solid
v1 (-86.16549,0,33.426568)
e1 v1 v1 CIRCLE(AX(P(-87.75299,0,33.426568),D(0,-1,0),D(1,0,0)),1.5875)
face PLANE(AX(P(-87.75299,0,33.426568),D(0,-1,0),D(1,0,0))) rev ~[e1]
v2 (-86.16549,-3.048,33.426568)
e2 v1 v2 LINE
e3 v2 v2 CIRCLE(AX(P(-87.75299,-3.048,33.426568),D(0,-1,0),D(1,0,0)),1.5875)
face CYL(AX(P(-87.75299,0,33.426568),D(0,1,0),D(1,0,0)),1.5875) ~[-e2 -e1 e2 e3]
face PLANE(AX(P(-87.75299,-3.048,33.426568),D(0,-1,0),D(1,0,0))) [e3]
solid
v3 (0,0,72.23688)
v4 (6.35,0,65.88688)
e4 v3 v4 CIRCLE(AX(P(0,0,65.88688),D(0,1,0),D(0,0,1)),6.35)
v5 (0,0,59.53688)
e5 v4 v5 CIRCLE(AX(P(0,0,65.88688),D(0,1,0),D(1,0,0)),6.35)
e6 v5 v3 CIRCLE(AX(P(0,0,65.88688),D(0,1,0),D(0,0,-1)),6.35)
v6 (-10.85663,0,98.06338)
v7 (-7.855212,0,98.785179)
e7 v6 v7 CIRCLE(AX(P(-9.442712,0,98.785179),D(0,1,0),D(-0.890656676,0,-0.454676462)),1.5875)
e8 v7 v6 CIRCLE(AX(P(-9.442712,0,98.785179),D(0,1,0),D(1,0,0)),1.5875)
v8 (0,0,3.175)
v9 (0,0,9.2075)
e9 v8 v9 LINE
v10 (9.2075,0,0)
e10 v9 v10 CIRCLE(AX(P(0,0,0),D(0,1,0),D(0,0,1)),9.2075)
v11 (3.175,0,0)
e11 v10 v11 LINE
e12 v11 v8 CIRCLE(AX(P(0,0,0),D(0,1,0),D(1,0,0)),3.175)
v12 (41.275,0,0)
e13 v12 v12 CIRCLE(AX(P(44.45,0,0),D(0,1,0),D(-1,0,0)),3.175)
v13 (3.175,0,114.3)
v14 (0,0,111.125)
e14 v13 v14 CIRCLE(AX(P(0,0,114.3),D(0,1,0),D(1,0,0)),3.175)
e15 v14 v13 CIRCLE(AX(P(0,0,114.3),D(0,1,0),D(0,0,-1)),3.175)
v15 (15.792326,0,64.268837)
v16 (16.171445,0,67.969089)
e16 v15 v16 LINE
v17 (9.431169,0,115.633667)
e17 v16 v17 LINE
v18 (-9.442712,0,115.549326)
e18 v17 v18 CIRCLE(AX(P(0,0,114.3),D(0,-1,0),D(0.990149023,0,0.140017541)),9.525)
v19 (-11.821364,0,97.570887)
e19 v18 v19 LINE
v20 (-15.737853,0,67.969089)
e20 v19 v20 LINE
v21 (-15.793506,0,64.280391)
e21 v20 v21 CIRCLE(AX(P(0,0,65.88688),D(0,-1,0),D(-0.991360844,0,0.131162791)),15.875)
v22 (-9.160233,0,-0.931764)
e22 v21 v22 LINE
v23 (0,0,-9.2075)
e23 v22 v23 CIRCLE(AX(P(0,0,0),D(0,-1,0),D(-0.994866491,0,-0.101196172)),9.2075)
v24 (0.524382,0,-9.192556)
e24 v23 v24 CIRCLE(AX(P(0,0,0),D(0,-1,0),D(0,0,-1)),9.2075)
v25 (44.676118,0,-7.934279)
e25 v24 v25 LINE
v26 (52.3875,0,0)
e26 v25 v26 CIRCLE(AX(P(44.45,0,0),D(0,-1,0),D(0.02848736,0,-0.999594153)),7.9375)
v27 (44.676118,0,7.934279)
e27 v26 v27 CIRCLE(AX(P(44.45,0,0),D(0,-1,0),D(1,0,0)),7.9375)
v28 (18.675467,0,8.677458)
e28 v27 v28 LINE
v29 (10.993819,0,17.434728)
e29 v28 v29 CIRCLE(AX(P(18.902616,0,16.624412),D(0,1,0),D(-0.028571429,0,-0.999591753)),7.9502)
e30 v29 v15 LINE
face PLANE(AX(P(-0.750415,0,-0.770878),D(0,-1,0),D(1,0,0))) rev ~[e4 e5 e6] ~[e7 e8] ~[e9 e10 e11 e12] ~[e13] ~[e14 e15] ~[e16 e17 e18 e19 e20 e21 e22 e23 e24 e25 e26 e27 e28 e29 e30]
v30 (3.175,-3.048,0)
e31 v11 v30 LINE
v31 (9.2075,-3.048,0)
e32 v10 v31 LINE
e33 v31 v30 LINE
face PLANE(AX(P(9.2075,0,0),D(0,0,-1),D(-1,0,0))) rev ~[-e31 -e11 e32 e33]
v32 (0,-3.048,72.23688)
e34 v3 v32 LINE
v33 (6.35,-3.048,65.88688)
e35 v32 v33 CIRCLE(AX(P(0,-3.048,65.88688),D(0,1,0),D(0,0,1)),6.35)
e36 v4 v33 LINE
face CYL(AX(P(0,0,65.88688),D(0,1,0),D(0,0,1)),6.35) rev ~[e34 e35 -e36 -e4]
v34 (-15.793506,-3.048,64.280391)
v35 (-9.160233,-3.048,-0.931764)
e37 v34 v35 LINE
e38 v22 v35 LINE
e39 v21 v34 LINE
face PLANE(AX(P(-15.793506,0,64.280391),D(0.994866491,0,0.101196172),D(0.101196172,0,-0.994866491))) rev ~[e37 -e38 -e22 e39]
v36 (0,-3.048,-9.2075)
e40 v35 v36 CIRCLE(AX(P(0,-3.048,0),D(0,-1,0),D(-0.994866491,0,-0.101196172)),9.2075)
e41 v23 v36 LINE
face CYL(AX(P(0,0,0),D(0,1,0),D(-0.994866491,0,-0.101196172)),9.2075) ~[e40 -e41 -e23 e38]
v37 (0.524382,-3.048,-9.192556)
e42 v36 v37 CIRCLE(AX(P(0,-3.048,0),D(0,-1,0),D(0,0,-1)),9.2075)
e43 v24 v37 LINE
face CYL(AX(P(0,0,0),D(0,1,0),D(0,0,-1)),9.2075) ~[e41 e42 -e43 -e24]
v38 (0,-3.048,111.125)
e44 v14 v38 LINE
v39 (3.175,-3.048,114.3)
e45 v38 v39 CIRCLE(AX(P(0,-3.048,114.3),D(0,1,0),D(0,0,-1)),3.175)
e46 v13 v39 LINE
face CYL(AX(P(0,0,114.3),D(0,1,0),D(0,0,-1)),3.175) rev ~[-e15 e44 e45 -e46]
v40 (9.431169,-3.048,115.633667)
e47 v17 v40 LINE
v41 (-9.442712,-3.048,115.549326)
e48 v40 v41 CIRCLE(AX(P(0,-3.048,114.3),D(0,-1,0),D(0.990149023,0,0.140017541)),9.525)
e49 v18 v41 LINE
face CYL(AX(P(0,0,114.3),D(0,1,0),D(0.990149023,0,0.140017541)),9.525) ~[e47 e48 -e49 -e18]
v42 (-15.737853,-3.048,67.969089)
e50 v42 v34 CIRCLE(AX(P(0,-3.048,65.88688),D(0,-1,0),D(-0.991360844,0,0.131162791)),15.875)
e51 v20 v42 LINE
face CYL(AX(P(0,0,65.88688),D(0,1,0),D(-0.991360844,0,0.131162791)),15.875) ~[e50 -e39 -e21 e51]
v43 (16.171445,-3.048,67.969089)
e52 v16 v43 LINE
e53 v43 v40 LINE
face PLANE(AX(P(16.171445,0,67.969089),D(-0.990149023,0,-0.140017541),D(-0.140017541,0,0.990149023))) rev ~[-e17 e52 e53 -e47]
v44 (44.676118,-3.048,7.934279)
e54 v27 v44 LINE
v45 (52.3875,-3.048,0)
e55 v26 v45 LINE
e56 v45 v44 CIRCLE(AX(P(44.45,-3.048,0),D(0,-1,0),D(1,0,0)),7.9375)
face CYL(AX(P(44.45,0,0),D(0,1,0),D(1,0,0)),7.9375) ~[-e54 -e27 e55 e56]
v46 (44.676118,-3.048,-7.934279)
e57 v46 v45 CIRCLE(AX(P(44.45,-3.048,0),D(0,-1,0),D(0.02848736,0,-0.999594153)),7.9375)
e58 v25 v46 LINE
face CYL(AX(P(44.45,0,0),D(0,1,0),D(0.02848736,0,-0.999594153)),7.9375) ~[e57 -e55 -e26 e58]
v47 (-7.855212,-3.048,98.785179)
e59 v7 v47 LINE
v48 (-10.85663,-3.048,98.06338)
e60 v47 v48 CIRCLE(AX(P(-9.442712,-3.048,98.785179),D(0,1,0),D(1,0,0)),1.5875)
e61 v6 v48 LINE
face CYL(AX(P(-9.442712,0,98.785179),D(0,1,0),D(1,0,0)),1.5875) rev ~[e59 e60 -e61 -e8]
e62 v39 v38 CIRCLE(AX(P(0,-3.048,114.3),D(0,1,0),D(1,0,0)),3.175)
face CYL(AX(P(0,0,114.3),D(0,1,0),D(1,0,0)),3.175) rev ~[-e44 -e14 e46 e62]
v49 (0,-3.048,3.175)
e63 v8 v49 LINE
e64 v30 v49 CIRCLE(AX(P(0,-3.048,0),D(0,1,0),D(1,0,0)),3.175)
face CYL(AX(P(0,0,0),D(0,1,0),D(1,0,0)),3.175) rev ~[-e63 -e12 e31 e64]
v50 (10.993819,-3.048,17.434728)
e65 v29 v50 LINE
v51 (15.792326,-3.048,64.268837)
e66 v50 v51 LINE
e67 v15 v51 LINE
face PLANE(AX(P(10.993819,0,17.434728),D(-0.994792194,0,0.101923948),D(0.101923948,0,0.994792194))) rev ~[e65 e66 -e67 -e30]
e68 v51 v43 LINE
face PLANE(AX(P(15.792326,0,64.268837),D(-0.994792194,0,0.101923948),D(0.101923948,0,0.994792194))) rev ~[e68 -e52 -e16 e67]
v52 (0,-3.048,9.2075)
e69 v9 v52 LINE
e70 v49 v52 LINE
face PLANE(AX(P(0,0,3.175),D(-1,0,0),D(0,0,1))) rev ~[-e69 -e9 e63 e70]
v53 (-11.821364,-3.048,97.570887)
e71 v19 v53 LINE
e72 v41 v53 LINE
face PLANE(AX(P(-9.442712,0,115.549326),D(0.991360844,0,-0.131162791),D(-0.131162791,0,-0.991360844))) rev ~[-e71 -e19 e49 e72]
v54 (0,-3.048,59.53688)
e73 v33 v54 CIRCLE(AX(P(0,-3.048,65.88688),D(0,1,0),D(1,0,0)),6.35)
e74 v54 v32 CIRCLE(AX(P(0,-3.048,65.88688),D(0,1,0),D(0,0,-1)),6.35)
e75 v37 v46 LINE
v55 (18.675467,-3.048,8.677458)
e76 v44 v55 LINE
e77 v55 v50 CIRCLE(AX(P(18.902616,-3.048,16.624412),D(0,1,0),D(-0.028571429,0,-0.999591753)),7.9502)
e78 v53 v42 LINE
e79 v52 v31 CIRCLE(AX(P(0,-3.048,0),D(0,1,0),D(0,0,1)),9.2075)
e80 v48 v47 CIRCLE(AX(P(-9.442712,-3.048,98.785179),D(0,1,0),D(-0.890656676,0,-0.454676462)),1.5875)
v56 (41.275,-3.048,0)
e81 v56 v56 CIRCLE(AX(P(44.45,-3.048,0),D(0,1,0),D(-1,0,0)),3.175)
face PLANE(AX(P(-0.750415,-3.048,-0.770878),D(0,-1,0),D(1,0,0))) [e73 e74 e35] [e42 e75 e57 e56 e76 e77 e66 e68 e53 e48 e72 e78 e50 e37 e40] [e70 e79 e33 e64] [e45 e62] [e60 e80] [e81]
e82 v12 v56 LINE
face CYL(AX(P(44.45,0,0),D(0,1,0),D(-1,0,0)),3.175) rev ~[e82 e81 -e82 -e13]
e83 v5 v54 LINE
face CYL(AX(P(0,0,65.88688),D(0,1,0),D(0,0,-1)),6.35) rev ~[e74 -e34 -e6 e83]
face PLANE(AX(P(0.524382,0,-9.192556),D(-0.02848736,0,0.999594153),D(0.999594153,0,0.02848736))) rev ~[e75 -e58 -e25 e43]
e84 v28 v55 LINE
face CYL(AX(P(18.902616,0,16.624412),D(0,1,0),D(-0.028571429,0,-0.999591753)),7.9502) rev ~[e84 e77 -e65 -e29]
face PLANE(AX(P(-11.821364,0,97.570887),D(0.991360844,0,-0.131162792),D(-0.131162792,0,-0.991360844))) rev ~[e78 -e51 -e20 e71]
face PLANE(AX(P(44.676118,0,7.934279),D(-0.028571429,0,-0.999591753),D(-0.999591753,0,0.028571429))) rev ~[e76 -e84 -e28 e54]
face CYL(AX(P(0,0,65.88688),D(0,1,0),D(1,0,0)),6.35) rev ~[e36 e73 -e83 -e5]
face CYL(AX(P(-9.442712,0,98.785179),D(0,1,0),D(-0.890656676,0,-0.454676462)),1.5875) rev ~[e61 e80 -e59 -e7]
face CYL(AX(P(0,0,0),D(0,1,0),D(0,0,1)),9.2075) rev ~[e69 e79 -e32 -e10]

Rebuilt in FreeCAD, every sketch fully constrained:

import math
import FreeCAD as App
import Part
import Sketcher
Q = App.Units.Quantity

doc = App.newDocument("Part")
body = doc.addObject("PartDesign::Body", "Body")

# Sketch on XZ plane
sketch1 = doc.addObject("Sketcher::SketchObject", "Sketch")
body.addObject(sketch1)
sketch1.AttachmentSupport = (doc.XZ_Plane, [""])
sketch1.MapMode = "FlatFace"
sketch1.addGeometry(Part.ArcOfCircle(Part.Circle(App.Vector(0, 0, 0), App.Vector(0, 0, 1), 9.2), math.radians(-90), math.radians(-86.74)), False)
sketch1.addGeometry(Part.LineSegment(App.Vector(0.5, -9.2, 0), App.Vector(44.7, -7.9, 0)), False)
sketch1.addGeometry(Part.ArcOfCircle(Part.Circle(App.Vector(44.5, 0, 0), App.Vector(0, 0, 1), 7.9), math.radians(-88), math.radians(0)), False)
sketch1.addGeometry(Part.ArcOfCircle(Part.Circle(App.Vector(44.5, 0, 0), App.Vector(0, 0, 1), 7.9), math.radians(0), math.radians(88)), False)
sketch1.addGeometry(Part.LineSegment(App.Vector(44.7, 7.9, 0), App.Vector(18.7, 8.7, 0)), False)
sketch1.addGeometry(Part.ArcOfCircle(Part.Circle(App.Vector(18.9, 16.6, 0), App.Vector(0, 0, 1), 8), math.radians(174), math.radians(268)), False)
sketch1.addGeometry(Part.LineSegment(App.Vector(11, 17.4, 0), App.Vector(15.8, 64.3, 0)), False)
sketch1.addGeometry(Part.LineSegment(App.Vector(15.8, 64.3, 0), App.Vector(16.2, 68, 0)), False)
sketch1.addGeometry(Part.LineSegment(App.Vector(16.2, 68, 0), App.Vector(9.4, 115.6, 0)), False)
sketch1.addGeometry(Part.ArcOfCircle(Part.Circle(App.Vector(0, 114.3, 0), App.Vector(0, 0, 1), 9.5), math.radians(8), math.radians(172)), False)
sketch1.addGeometry(Part.LineSegment(App.Vector(-9.4, 115.5, 0), App.Vector(-11.8, 97.6, 0)), False)
sketch1.addGeometry(Part.LineSegment(App.Vector(-11.8, 97.6, 0), App.Vector(-15.7, 68, 0)), False)
sketch1.addGeometry(Part.ArcOfCircle(Part.Circle(App.Vector(0, 65.9, 0), App.Vector(0, 0, 1), 15.9), math.radians(172.46), math.radians(185.81)), False)
sketch1.addGeometry(Part.LineSegment(App.Vector(-15.8, 64.3, 0), App.Vector(-9.2, -0.9, 0)), False)
sketch1.addGeometry(Part.ArcOfCircle(Part.Circle(App.Vector(0, 0, 0), App.Vector(0, 0, 1), 9.2), math.radians(-174), math.radians(-90)), False)
sketch1.addGeometry(Part.ArcOfCircle(Part.Circle(App.Vector(0, 0, 0), App.Vector(0, 0, 1), 9.2), math.radians(0), math.radians(90)), False)
sketch1.addGeometry(Part.LineSegment(App.Vector(9.2, 0, 0), App.Vector(3.2, 0, 0)), False)
sketch1.addGeometry(Part.ArcOfCircle(Part.Circle(App.Vector(0, 0, 0), App.Vector(0, 0, 1), 3.2), math.radians(90), math.radians(360)), False)
sketch1.addGeometry(Part.LineSegment(App.Vector(0, 3.2, 0), App.Vector(0, 9.2, 0)), False)
sketch1.addGeometry(Part.Circle(App.Vector(44.5, 0, 0), App.Vector(0, 0, 1), 3.2), False)
sketch1.addGeometry(Part.ArcOfCircle(Part.Circle(App.Vector(0, 65.9, 0), App.Vector(0, 0, 1), 6.3), math.radians(90), math.radians(270)), False)
sketch1.addGeometry(Part.ArcOfCircle(Part.Circle(App.Vector(0, 65.9, 0), App.Vector(0, 0, 1), 6.3), math.radians(0), math.radians(90)), False)
sketch1.addGeometry(Part.ArcOfCircle(Part.Circle(App.Vector(0, 65.9, 0), App.Vector(0, 0, 1), 6.3), math.radians(-90), math.radians(0)), False)
sketch1.addGeometry(Part.ArcOfCircle(Part.Circle(App.Vector(-9.4, 98.8, 0), App.Vector(0, 0, 1), 1.6), math.radians(0), math.radians(207)), False)
sketch1.addGeometry(Part.ArcOfCircle(Part.Circle(App.Vector(-9.4, 98.8, 0), App.Vector(0, 0, 1), 1.6), math.radians(-153), math.radians(0)), False)
sketch1.addGeometry(Part.ArcOfCircle(Part.Circle(App.Vector(0, 114.3, 0), App.Vector(0, 0, 1), 3.2), math.radians(0), math.radians(270)), False)
sketch1.addGeometry(Part.ArcOfCircle(Part.Circle(App.Vector(0, 114.3, 0), App.Vector(0, 0, 1), 3.2), math.radians(-90), math.radians(0)), False)
sketch1.addConstraint(Sketcher.Constraint("Coincident", 0, 2, 1, 1))
sketch1.addConstraint(Sketcher.Constraint("Tangent", 1, 2, 2, 1))
sketch1.addConstraint(Sketcher.Constraint("Tangent", 2, 2, 3, 1))
sketch1.addConstraint(Sketcher.Constraint("Coincident", 3, 2, 4, 1))
sketch1.addConstraint(Sketcher.Constraint("Tangent", 4, 2, 5, 2))
sketch1.addConstraint(Sketcher.Constraint("Tangent", 5, 1, 6, 1))
sketch1.addConstraint(Sketcher.Constraint("Coincident", 6, 2, 7, 1))
sketch1.addConstraint(Sketcher.Constraint("Coincident", 7, 2, 8, 1))
sketch1.addConstraint(Sketcher.Constraint("Tangent", 8, 2, 9, 1))
sketch1.addConstraint(Sketcher.Constraint("Tangent", 9, 2, 10, 1))
sketch1.addConstraint(Sketcher.Constraint("Coincident", 10, 2, 11, 1))
sketch1.addConstraint(Sketcher.Constraint("Tangent", 11, 2, 12, 1))
sketch1.addConstraint(Sketcher.Constraint("Tangent", 12, 2, 13, 1))
sketch1.addConstraint(Sketcher.Constraint("Tangent", 13, 2, 14, 1))
sketch1.addConstraint(Sketcher.Constraint("Tangent", 14, 2, 0, 1))
sketch1.addConstraint(Sketcher.Constraint("Coincident", 15, 1, 16, 1))
sketch1.addConstraint(Sketcher.Constraint("Coincident", 16, 2, 17, 2))
sketch1.addConstraint(Sketcher.Constraint("Coincident", 17, 1, 18, 1))
sketch1.addConstraint(Sketcher.Constraint("Coincident", 18, 2, 15, 2))
sketch1.addConstraint(Sketcher.Constraint("Tangent", 20, 1, 21, 2))
sketch1.addConstraint(Sketcher.Constraint("Tangent", 21, 1, 22, 2))
sketch1.addConstraint(Sketcher.Constraint("Tangent", 22, 1, 20, 2))
sketch1.addConstraint(Sketcher.Constraint("Tangent", 23, 1, 24, 2))
sketch1.addConstraint(Sketcher.Constraint("Coincident", 24, 1, 23, 2))
sketch1.addConstraint(Sketcher.Constraint("Tangent", 25, 1, 26, 2))
sketch1.addConstraint(Sketcher.Constraint("Coincident", 26, 1, 25, 2))
sketch1.addConstraint(Sketcher.Constraint("Horizontal", 16))
sketch1.addConstraint(Sketcher.Constraint("Vertical", 18))
sketch1.addConstraint(Sketcher.Constraint("Coincident", 0, 3, -1, 1))
sketch1.addConstraint(Sketcher.Constraint("Coincident", 15, 3, -1, 1))
sketch1.addConstraint(Sketcher.Constraint("Coincident", 17, 3, -1, 1))
sketch1.addConstraint(Sketcher.Constraint("Coincident", 19, 3, 2, 3))
sketch1.addConstraint(Sketcher.Constraint("Coincident", 20, 3, 12, 3))
sketch1.addConstraint(Sketcher.Constraint("Coincident", 25, 3, 9, 3))
sketch1.addConstraint(Sketcher.Constraint("Equal", 2, 3))
sketch1.addConstraint(Sketcher.Constraint("Equal", 0, 14))
sketch1.addConstraint(Sketcher.Constraint("Equal", 14, 15))
sketch1.addConstraint(Sketcher.Constraint("Equal", 17, 19))
sketch1.addConstraint(Sketcher.Constraint("Equal", 19, 25))
sketch1.addConstraint(Sketcher.Constraint("Symmetric", 1, 2, 3, 2, -1))
sketch1.addConstraint(Sketcher.Constraint("PointOnObject", 9, 3, -2))
sketch1.addConstraint(Sketcher.Constraint("PointOnObject", 12, 3, -2))
sketch1.addConstraint(Sketcher.Constraint("PointOnObject", 2, 2, -1))
sketch1.addConstraint(Sketcher.Constraint("PointOnObject", 14, 2, -2))
sketch1.addConstraint(Sketcher.Constraint("PointOnObject", 15, 1, -1))
sketch1.addConstraint(Sketcher.Constraint("PointOnObject", 17, 1, -2))
sketch1.addConstraint(Sketcher.Constraint("PointOnObject", 20, 1, -2))
sketch1.addConstraint(Sketcher.Constraint("PointOnObject", 22, 1, -2))
sketch1.addConstraint(Sketcher.Constraint("PointOnObject", 26, 1, -2))
sketch1.addConstraint(Sketcher.Constraint("Parallel", 6, 7))
sketch1.addConstraint(Sketcher.Constraint("Parallel", 10, 11))
sketch1.addConstraint(Sketcher.Constraint("Horizontal", 7, 2, 11, 2))
sketch1.addConstraint(Sketcher.Constraint("Horizontal", 22, 3, 21, 1))
sketch1.addConstraint(Sketcher.Constraint("Horizontal", 24, 3, 23, 1))
sketch1.addConstraint(Sketcher.Constraint("Horizontal", 26, 3, 25, 1))
sketch1.addConstraint(Sketcher.Constraint("Vertical", 24, 3, 9, 2))
sketch1.addConstraint(Sketcher.Constraint("Diameter", 19, Q("0.25 in")))
sketch1.addConstraint(Sketcher.Constraint("Radius", 20, Q("0.25 in")))
sketch1.addConstraint(Sketcher.Constraint("Radius", 2, Q("0.3125 in")))
sketch1.addConstraint(Sketcher.Constraint("Radius", 5, Q("0.313 in")))
sketch1.addConstraint(Sketcher.Constraint("Radius", 9, Q("0.375 in")))
sketch1.addConstraint(Sketcher.Constraint("Radius", 12, Q("0.625 in")))
sketch1.addConstraint(Sketcher.Constraint("Radius", 23, Q("0.0625 in")))
sketch1.addConstraint(Sketcher.Constraint("DistanceY", -1, 1, 9, 3, Q("4.5 in")))
sketch1.addConstraint(Sketcher.Constraint("Radius", 0, Q("0.3625 in")))
sketch1.addConstraint(Sketcher.Constraint("DistanceX", -1, 1, 2, 3, Q("1.75 in")))
sketch1.addConstraint(Sketcher.Constraint("DistanceY", 20, 3, 23, 3, Q("32.898299 mm")))
sketch1.addConstraint(Sketcher.Constraint("DistanceY", 11, 2, 10, 2, Q("29.601798 mm")))
sketch1.addConstraint(Sketcher.Constraint("DistanceY", 24, 1, 23, 3, Q("0.721799 mm")))
sketch1.addConstraint(Sketcher.Constraint("Distance", 4, Q("26.01127 mm")))
sketch1.addConstraint(Sketcher.Constraint("Distance", 6, Q("47.079289 mm")))
sketch1.addConstraint(Sketcher.Constraint("Distance", 10, Q("18.13511 mm")))
sketch1.addConstraint(Sketcher.Constraint("DistanceX", -1, 1, 0, 2, Q("0.524382 mm")))
sketch1.addConstraint(Sketcher.Constraint("DistanceX", -1, 1, 5, 1, Q("10.993819 mm")))
sketch1.addConstraint(Sketcher.Constraint("DistanceX", -1, 1, 8, 2, Q("9.431169 mm")))
pad1 = doc.addObject("PartDesign::Pad", "Pad")
body.addObject(pad1)
pad1.Profile = sketch1
pad1.Length = Q("0.12 in")
body2 = doc.addObject("PartDesign::Body", "Body001")

# Sketch on XZ plane
sketch2 = doc.addObject("Sketcher::SketchObject", "Sketch001")
body2.addObject(sketch2)
sketch2.AttachmentSupport = (doc.getObject("XZ_Plane001"), [""])
sketch2.MapMode = "FlatFace"
sketch2.addGeometry(Part.Circle(App.Vector(-87.8, 33.4, 0), App.Vector(0, 0, 1), 1.6), False)
sketch2.addConstraint(Sketcher.Constraint("Diameter", 0, Q("0.125 in")))
sketch2.addConstraint(Sketcher.Constraint("DistanceX", 0, 3, -1, 1, Q("87.75299 mm")))
sketch2.addConstraint(Sketcher.Constraint("DistanceY", -1, 1, 0, 3, Q("33.426568 mm")))
pad2 = doc.addObject("PartDesign::Pad", "Pad001")
body2.addObject(pad2)
pad2.Profile = sketch2
pad2.Length = Q("0.12 in")

doc.recompute()
